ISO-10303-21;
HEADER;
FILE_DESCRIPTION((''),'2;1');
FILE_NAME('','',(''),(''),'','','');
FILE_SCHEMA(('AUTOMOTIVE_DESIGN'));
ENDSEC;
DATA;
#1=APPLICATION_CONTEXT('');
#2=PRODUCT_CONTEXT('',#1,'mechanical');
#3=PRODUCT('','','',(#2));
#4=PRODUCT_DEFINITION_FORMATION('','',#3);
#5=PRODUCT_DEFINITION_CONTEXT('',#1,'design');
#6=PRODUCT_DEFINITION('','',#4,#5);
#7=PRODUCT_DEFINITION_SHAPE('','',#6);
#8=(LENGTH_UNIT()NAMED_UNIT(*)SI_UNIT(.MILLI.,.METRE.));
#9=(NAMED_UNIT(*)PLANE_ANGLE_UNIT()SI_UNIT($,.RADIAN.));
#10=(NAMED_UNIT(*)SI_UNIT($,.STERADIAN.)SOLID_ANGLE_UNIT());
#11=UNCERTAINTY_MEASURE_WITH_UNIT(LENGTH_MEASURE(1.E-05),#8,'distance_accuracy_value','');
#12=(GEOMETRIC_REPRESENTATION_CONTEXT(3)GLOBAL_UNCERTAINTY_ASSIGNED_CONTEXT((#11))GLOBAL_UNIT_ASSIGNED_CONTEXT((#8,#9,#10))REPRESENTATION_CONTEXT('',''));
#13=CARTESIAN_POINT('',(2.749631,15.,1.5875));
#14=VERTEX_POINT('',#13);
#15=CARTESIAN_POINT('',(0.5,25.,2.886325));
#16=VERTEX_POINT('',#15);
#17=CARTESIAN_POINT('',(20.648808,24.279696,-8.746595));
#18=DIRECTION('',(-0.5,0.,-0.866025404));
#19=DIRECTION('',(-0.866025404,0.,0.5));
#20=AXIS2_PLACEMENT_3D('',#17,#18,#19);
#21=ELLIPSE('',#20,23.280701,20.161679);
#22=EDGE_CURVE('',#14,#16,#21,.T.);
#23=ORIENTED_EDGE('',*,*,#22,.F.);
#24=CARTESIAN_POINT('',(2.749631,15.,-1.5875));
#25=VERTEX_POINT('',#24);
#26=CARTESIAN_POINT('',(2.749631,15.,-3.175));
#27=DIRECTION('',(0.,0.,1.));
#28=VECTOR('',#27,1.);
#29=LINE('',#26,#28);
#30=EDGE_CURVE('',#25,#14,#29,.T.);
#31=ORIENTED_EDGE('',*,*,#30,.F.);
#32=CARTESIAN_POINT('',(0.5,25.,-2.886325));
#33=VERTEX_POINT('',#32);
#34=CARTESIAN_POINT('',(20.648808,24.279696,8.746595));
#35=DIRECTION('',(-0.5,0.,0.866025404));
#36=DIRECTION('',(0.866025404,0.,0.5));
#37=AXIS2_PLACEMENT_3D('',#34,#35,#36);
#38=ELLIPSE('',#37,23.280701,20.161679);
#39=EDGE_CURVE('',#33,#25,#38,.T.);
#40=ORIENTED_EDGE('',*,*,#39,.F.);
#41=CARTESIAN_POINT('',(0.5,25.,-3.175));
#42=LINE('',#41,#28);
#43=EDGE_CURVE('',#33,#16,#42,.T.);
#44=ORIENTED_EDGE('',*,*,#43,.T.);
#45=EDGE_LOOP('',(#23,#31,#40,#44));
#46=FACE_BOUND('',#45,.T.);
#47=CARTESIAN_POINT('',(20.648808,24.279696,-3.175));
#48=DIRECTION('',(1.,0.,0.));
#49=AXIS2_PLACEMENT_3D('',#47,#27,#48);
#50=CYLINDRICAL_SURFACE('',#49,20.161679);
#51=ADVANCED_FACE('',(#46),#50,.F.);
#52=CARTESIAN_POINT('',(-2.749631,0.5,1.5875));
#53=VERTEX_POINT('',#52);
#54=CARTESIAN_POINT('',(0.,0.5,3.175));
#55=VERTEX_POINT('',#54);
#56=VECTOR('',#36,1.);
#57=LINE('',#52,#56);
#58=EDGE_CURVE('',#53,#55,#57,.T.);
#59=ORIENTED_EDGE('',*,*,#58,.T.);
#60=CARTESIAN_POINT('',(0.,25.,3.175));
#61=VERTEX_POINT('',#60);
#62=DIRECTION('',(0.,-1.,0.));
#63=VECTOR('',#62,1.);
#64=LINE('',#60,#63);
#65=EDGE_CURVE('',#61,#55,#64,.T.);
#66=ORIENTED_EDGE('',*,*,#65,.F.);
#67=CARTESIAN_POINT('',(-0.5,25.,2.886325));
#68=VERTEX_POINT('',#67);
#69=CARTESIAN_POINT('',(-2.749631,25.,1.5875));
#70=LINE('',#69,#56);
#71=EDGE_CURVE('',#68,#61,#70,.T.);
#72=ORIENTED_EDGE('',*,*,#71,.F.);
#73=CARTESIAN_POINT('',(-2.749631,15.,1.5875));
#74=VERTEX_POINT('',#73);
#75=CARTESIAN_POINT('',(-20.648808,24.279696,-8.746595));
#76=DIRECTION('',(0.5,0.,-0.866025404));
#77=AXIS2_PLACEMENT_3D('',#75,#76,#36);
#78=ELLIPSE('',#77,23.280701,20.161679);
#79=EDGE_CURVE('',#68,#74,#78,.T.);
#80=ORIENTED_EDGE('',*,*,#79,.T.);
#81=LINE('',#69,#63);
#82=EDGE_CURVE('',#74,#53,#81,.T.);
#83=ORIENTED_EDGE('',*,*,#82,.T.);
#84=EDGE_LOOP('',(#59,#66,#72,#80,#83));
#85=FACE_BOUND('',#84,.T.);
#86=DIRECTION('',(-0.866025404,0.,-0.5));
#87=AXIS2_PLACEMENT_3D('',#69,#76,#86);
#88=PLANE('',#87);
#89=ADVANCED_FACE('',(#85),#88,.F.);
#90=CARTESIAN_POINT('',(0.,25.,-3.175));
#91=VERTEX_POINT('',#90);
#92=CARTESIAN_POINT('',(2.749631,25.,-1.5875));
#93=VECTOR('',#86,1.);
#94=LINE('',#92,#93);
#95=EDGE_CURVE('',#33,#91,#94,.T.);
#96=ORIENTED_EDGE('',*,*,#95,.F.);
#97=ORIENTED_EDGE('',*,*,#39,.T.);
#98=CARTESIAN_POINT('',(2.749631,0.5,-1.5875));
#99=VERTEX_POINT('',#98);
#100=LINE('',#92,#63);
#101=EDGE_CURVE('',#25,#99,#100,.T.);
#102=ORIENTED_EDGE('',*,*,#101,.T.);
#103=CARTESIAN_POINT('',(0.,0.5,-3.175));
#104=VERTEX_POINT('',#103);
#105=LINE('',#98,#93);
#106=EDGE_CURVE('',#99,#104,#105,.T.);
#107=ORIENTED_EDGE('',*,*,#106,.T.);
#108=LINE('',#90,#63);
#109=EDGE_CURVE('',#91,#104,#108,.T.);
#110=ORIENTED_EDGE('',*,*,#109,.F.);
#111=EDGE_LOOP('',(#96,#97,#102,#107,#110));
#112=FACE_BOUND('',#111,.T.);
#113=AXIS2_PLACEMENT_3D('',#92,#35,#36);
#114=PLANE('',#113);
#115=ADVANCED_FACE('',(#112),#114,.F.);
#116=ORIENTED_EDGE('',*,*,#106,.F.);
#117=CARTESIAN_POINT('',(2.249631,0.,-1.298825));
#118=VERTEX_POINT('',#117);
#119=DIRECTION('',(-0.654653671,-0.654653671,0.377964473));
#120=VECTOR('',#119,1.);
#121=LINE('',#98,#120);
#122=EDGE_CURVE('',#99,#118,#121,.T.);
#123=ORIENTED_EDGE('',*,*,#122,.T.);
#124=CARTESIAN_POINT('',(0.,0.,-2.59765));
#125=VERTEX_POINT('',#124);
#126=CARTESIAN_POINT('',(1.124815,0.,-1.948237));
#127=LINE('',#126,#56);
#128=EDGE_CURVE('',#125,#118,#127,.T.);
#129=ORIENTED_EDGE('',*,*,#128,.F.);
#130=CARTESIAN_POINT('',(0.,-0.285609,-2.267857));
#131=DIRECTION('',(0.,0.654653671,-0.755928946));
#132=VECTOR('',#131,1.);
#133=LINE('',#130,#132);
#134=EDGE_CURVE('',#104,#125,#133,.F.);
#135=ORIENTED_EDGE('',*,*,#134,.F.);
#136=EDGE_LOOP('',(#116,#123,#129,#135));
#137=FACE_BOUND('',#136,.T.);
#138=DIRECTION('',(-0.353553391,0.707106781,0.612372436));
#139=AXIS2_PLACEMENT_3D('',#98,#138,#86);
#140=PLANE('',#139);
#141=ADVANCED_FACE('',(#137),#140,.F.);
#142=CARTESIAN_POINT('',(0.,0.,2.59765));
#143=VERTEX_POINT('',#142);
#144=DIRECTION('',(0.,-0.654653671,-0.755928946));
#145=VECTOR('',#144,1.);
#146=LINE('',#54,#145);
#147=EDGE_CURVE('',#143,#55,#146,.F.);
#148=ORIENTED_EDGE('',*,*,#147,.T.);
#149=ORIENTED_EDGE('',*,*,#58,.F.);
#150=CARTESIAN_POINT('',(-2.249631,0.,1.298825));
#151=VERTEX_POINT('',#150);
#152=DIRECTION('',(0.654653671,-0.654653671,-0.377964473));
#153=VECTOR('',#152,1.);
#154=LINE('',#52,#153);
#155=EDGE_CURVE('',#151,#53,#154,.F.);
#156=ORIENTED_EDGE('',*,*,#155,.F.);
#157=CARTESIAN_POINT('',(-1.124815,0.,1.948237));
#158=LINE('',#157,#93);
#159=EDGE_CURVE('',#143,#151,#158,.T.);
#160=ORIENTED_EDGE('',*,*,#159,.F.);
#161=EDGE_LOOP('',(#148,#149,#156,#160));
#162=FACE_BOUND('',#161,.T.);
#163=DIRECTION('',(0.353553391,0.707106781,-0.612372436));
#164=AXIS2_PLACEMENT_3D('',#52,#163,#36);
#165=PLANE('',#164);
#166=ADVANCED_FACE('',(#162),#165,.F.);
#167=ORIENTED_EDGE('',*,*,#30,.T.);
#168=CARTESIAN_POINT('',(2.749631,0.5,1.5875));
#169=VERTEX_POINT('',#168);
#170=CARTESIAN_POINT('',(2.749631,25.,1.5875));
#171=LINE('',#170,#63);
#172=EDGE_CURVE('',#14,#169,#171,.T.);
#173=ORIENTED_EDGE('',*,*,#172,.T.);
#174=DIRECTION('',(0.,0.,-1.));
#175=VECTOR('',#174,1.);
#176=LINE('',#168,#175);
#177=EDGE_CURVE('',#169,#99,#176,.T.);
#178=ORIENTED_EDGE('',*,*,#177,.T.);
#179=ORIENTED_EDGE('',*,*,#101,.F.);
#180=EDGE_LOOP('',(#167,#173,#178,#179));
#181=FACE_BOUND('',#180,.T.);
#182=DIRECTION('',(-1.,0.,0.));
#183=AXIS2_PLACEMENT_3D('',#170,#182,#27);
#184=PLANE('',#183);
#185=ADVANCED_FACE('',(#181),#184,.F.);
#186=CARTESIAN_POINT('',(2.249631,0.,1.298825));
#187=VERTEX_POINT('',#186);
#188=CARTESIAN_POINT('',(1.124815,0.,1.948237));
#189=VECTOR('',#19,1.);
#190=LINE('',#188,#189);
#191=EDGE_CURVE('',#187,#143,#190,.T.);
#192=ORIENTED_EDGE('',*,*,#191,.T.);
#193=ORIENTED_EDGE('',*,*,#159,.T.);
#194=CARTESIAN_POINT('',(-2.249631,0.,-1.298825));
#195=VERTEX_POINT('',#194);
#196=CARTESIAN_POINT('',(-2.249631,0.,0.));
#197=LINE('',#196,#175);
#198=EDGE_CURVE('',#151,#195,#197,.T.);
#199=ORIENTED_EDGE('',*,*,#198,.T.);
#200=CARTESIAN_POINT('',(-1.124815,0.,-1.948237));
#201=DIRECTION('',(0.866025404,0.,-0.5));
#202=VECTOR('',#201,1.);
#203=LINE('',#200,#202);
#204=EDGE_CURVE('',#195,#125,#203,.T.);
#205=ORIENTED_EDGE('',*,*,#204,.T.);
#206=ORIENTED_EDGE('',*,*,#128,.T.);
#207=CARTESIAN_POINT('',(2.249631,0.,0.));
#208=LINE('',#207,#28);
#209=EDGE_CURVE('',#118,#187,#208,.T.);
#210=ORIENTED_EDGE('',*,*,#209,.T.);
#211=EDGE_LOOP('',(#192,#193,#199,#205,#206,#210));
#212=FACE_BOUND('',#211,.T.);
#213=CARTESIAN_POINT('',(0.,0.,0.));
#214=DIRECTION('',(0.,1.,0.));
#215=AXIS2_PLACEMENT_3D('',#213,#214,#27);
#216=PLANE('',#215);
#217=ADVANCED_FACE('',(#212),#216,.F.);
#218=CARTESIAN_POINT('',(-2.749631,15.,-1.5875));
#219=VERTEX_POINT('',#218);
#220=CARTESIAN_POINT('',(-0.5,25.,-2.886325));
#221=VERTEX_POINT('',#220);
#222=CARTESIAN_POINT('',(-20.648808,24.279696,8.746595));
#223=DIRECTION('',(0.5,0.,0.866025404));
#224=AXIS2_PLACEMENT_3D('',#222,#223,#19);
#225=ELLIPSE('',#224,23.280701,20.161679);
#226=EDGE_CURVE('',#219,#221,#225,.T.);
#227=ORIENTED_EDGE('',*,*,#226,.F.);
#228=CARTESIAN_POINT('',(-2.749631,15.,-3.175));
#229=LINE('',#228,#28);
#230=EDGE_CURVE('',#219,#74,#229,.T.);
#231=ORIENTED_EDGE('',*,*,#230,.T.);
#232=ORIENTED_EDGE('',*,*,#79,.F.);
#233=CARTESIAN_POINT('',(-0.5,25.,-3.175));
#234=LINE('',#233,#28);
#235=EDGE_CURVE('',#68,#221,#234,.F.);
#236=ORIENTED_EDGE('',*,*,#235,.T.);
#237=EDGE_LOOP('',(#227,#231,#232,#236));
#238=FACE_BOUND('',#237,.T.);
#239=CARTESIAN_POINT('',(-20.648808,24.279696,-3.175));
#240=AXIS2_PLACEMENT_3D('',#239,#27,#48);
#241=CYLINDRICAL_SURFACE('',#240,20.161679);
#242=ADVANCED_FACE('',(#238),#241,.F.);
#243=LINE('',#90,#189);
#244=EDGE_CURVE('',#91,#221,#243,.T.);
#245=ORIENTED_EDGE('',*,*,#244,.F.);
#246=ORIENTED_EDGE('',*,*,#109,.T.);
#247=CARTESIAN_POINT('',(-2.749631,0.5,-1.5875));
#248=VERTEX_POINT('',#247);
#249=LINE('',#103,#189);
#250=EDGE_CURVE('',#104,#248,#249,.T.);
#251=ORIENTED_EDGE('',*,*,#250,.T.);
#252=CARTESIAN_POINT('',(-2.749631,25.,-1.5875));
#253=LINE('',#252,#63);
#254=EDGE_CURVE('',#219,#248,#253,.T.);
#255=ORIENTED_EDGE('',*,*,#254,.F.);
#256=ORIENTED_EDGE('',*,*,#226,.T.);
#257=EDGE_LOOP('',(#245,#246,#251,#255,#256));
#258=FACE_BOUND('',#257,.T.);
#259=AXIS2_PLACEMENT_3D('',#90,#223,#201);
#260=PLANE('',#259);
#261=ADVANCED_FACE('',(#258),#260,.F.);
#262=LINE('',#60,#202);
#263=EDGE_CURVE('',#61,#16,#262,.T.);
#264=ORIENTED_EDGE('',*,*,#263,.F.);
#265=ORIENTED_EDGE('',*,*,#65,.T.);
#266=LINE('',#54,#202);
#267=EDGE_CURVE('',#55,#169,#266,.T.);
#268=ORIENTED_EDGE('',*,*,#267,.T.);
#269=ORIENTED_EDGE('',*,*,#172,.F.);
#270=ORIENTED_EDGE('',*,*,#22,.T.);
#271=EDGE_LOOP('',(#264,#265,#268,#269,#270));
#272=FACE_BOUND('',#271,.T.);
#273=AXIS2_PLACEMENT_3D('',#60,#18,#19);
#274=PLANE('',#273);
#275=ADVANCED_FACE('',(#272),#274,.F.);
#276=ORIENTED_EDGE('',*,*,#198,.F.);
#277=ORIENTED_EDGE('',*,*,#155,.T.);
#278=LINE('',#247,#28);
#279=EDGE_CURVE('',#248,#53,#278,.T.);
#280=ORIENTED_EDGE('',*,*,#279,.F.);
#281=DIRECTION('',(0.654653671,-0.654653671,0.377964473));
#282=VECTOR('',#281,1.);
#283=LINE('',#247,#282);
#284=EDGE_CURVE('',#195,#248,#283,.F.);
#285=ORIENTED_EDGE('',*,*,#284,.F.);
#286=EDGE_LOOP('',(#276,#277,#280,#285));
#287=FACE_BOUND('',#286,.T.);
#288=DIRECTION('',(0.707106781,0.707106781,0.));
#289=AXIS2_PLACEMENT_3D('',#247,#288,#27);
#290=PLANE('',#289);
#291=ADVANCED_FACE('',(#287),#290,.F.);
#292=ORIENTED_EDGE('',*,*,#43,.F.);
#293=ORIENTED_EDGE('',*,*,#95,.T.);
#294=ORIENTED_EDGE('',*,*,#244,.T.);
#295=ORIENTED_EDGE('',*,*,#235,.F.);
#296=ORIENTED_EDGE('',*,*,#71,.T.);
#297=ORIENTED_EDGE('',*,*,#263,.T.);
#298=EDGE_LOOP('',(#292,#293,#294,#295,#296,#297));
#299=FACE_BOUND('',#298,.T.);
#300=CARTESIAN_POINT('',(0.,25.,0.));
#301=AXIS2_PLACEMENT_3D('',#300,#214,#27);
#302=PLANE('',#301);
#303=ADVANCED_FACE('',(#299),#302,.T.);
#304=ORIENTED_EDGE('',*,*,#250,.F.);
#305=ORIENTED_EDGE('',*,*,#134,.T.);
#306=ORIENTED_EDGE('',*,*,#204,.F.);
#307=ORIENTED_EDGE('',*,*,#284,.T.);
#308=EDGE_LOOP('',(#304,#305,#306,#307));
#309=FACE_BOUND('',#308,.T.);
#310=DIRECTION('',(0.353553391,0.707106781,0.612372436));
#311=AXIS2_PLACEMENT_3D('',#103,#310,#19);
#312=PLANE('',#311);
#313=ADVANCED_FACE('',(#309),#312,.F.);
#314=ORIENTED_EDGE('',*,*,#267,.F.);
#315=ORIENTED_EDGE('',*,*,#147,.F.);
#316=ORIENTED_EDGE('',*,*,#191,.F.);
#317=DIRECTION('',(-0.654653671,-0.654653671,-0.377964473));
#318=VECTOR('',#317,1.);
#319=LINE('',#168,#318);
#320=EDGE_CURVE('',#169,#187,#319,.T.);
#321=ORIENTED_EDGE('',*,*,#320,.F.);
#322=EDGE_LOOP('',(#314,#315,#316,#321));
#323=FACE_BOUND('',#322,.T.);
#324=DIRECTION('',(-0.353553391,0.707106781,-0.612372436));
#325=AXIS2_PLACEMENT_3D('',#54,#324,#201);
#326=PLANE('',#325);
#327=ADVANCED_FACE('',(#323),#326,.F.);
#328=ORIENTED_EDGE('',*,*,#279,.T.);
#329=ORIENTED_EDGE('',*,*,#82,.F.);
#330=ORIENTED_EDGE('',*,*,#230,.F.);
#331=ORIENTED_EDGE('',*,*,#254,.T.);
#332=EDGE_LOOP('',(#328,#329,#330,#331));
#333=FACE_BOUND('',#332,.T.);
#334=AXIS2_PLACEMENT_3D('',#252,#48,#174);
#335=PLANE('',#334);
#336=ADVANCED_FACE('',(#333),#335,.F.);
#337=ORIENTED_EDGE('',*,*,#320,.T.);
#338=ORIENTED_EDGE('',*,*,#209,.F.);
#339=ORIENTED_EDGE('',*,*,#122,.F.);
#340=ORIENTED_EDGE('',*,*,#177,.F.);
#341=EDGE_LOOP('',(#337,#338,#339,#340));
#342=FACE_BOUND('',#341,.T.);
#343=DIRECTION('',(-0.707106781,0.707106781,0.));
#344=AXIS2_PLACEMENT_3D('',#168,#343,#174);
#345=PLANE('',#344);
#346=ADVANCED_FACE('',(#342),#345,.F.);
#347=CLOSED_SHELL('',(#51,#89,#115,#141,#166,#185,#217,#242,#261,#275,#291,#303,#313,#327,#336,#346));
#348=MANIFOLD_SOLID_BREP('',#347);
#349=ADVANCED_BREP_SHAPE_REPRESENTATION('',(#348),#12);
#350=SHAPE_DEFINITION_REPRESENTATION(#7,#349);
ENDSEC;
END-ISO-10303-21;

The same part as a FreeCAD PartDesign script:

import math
import FreeCAD as App
import Part
import Sketcher
Q = App.Units.Quantity


def edges_at(feature, points):
    """Names of the edges that pass closest to the given points."""
    edges = feature.Shape.Edges
    near = lambda p: min(range(len(edges)), key=lambda i: edges[i].distToShape(Part.Vertex(*p))[0])
    return sorted({f"Edge{near(p) + 1}" for p in points})

doc = App.newDocument("Part")
params = doc.addObject("Spreadsheet::Sheet", "Params")
for row, (alias, value) in enumerate([
    ("pad1_length", "25 mm"),
    ("sketch2_height", "10 mm"),
    ("chamfer_size", "0.5 mm"),
], start=1):
    params.set(f"A{row}", alias)
    params.set(f"B{row}", "=" + value)
    params.setAlias(f"B{row}", alias)

body = doc.addObject("PartDesign::Body", "Body")

# Sketch on XZ plane
sketch1 = body.newObject("Sketcher::SketchObject", "Sketch")
sketch1.AttachmentSupport = (doc.getObject("XZ_Plane"), [""])
sketch1.MapMode = "FlatFace"
sketch1.addGeometry(Part.LineSegment(App.Vector(0, -3.175, 0), App.Vector(-2.749631, -1.5875, 0)), False)
sketch1.addGeometry(Part.LineSegment(App.Vector(-2.749631, -1.5875, 0), App.Vector(-2.749631, 1.5875, 0)), False)
sketch1.addGeometry(Part.LineSegment(App.Vector(-2.749631, 1.5875, 0), App.Vector(0, 3.175, 0)), False)
sketch1.addGeometry(Part.LineSegment(App.Vector(0, 3.175, 0), App.Vector(2.749631, 1.5875, 0)), False)
sketch1.addGeometry(Part.LineSegment(App.Vector(2.749631, 1.5875, 0), App.Vector(2.749631, -1.5875, 0)), False)
sketch1.addGeometry(Part.LineSegment(App.Vector(2.749631, -1.5875, 0), App.Vector(0, -3.175, 0)), False)
sketch1.addConstraint(Sketcher.Constraint("Coincident", 0, 2, 1, 1))
sketch1.addConstraint(Sketcher.Constraint("Coincident", 1, 2, 2, 1))
sketch1.addConstraint(Sketcher.Constraint("Coincident", 2, 2, 3, 1))
sketch1.addConstraint(Sketcher.Constraint("Coincident", 3, 2, 4, 1))
sketch1.addConstraint(Sketcher.Constraint("Coincident", 4, 2, 5, 1))
sketch1.addConstraint(Sketcher.Constraint("Coincident", 5, 2, 0, 1))
sketch1.addConstraint(Sketcher.Constraint("Vertical", 1))
sketch1.addConstraint(Sketcher.Constraint("Vertical", 4))
sketch1.addConstraint(Sketcher.Constraint("Symmetric", 0, 2, 3, 2, -1, 1))
sketch1.addConstraint(Sketcher.Constraint("Symmetric", 2, 2, 5, 2, -1, 1))
sketch1.addConstraint(Sketcher.Constraint("PointOnObject", 2, 2, -2))
sketch1.addConstraint(Sketcher.Constraint("Parallel", 2, 5))
sketch1.addConstraint(Sketcher.Constraint("Horizontal", 1, 2, 3, 2))
sketch1.addConstraint(Sketcher.Constraint("Angle", 0, Q("150 deg")))
sketch1.addConstraint(Sketcher.Constraint("DistanceY", 1, 1, 1, 2, 3.175))
sketch1.addConstraint(Sketcher.Constraint("DistanceY", 5, 2, 2, 2, 6.35))
pad1 = body.newObject("PartDesign::Pad", "Pad")
pad1.Profile = sketch1
pad1.setExpression("Length", "Params.pad1_length")
pad1.Reversed = True

# Sketch on XY plane
sketch2 = body.newObject("Sketcher::SketchObject", "Sketch001")
sketch2.AttachmentSupport = (doc.getObject("XY_Plane"), [""])
sketch2.MapMode = "FlatFace"
sketch2.addGeometry(Part.LineSegment(App.Vector(-0.5, 25, 0), App.Vector(-2.749631, 25, 0)), False)
sketch2.addGeometry(Part.LineSegment(App.Vector(-2.749631, 25, 0), App.Vector(-2.749631, 15, 0)), False)
sketch2.addGeometry(Part.ArcOfCircle(Part.Circle(App.Vector(-20.648808, 24.279696, 0), App.Vector(0, 0, 1), 20.161679), math.radians(-27.404147), math.radians(2.047408)), False)
sketch2.addGeometry(Part.LineSegment(App.Vector(2.749631, 25, 0), App.Vector(0.5, 25, 0)), False)
sketch2.addGeometry(Part.ArcOfCircle(Part.Circle(App.Vector(20.648808, 24.279696, 0), App.Vector(0, 0, 1), 20.161679), math.radians(177.952592), math.radians(207.404147)), False)
sketch2.addGeometry(Part.LineSegment(App.Vector(2.749631, 15, 0), App.Vector(2.749631, 25, 0)), False)
sketch2.addConstraint(Sketcher.Constraint("Coincident", 0, 2, 1, 1))
sketch2.addConstraint(Sketcher.Constraint("Coincident", 1, 2, 2, 1))
sketch2.addConstraint(Sketcher.Constraint("Coincident", 2, 2, 0, 1))
sketch2.addConstraint(Sketcher.Constraint("Coincident", 3, 2, 4, 1))
sketch2.addConstraint(Sketcher.Constraint("Coincident", 4, 2, 5, 1))
sketch2.addConstraint(Sketcher.Constraint("Coincident", 5, 2, 3, 1))
sketch2.addConstraint(Sketcher.Constraint("Horizontal", 0))
sketch2.addConstraint(Sketcher.Constraint("Vertical", 1))
sketch2.addConstraint(Sketcher.Constraint("Horizontal", 3))
sketch2.addConstraint(Sketcher.Constraint("Vertical", 5))
sketch2.addConstraint(Sketcher.Constraint("Equal", 2, 4))
sketch2.addConstraint(Sketcher.Constraint("Symmetric", 2, 3, 4, 3, -2))
sketch2.addConstraint(Sketcher.Constraint("Symmetric", 0, 2, 5, 2, -2))
sketch2.addConstraint(Sketcher.Constraint("DistanceY", 1, 2, 1, 1, 10.0))
sketch2.addConstraint(Sketcher.Constraint("DistanceY", -1, 1, 0, 2, 25.0))
sketch2.addConstraint(Sketcher.Constraint("DistanceX", 2, 2, 3, 2, 1.0))
sketch2.addConstraint(Sketcher.Constraint("Radius", 2, 20.161679))
sketch2.addConstraint(Sketcher.Constraint("DistanceX", 0, 2, 0, 1, 2.249631))
sketch2.setExpression("Constraints[13]", "Params.sketch2_height")
pocket1 = body.newObject("PartDesign::Pocket", "Pocket")
pocket1.Profile = sketch2
pocket1.Type = "ThroughAll"
pocket1.Midplane = True
doc.recompute()

chamfer = body.newObject("PartDesign::Chamfer", "Chamfer")
chamfer.Base = (pocket1, edges_at(pocket1, [
    (2.75, 0, 0),
    (1.375, 0, 2.381),
    (-1.375, 0, 2.381),
    (-2.75, 0, 0),
    (-1.375, 0, -2.381),
    (1.375, 0, -2.381),
]))
chamfer.setExpression("Size", "Params.chamfer_size")

doc.recompute()
